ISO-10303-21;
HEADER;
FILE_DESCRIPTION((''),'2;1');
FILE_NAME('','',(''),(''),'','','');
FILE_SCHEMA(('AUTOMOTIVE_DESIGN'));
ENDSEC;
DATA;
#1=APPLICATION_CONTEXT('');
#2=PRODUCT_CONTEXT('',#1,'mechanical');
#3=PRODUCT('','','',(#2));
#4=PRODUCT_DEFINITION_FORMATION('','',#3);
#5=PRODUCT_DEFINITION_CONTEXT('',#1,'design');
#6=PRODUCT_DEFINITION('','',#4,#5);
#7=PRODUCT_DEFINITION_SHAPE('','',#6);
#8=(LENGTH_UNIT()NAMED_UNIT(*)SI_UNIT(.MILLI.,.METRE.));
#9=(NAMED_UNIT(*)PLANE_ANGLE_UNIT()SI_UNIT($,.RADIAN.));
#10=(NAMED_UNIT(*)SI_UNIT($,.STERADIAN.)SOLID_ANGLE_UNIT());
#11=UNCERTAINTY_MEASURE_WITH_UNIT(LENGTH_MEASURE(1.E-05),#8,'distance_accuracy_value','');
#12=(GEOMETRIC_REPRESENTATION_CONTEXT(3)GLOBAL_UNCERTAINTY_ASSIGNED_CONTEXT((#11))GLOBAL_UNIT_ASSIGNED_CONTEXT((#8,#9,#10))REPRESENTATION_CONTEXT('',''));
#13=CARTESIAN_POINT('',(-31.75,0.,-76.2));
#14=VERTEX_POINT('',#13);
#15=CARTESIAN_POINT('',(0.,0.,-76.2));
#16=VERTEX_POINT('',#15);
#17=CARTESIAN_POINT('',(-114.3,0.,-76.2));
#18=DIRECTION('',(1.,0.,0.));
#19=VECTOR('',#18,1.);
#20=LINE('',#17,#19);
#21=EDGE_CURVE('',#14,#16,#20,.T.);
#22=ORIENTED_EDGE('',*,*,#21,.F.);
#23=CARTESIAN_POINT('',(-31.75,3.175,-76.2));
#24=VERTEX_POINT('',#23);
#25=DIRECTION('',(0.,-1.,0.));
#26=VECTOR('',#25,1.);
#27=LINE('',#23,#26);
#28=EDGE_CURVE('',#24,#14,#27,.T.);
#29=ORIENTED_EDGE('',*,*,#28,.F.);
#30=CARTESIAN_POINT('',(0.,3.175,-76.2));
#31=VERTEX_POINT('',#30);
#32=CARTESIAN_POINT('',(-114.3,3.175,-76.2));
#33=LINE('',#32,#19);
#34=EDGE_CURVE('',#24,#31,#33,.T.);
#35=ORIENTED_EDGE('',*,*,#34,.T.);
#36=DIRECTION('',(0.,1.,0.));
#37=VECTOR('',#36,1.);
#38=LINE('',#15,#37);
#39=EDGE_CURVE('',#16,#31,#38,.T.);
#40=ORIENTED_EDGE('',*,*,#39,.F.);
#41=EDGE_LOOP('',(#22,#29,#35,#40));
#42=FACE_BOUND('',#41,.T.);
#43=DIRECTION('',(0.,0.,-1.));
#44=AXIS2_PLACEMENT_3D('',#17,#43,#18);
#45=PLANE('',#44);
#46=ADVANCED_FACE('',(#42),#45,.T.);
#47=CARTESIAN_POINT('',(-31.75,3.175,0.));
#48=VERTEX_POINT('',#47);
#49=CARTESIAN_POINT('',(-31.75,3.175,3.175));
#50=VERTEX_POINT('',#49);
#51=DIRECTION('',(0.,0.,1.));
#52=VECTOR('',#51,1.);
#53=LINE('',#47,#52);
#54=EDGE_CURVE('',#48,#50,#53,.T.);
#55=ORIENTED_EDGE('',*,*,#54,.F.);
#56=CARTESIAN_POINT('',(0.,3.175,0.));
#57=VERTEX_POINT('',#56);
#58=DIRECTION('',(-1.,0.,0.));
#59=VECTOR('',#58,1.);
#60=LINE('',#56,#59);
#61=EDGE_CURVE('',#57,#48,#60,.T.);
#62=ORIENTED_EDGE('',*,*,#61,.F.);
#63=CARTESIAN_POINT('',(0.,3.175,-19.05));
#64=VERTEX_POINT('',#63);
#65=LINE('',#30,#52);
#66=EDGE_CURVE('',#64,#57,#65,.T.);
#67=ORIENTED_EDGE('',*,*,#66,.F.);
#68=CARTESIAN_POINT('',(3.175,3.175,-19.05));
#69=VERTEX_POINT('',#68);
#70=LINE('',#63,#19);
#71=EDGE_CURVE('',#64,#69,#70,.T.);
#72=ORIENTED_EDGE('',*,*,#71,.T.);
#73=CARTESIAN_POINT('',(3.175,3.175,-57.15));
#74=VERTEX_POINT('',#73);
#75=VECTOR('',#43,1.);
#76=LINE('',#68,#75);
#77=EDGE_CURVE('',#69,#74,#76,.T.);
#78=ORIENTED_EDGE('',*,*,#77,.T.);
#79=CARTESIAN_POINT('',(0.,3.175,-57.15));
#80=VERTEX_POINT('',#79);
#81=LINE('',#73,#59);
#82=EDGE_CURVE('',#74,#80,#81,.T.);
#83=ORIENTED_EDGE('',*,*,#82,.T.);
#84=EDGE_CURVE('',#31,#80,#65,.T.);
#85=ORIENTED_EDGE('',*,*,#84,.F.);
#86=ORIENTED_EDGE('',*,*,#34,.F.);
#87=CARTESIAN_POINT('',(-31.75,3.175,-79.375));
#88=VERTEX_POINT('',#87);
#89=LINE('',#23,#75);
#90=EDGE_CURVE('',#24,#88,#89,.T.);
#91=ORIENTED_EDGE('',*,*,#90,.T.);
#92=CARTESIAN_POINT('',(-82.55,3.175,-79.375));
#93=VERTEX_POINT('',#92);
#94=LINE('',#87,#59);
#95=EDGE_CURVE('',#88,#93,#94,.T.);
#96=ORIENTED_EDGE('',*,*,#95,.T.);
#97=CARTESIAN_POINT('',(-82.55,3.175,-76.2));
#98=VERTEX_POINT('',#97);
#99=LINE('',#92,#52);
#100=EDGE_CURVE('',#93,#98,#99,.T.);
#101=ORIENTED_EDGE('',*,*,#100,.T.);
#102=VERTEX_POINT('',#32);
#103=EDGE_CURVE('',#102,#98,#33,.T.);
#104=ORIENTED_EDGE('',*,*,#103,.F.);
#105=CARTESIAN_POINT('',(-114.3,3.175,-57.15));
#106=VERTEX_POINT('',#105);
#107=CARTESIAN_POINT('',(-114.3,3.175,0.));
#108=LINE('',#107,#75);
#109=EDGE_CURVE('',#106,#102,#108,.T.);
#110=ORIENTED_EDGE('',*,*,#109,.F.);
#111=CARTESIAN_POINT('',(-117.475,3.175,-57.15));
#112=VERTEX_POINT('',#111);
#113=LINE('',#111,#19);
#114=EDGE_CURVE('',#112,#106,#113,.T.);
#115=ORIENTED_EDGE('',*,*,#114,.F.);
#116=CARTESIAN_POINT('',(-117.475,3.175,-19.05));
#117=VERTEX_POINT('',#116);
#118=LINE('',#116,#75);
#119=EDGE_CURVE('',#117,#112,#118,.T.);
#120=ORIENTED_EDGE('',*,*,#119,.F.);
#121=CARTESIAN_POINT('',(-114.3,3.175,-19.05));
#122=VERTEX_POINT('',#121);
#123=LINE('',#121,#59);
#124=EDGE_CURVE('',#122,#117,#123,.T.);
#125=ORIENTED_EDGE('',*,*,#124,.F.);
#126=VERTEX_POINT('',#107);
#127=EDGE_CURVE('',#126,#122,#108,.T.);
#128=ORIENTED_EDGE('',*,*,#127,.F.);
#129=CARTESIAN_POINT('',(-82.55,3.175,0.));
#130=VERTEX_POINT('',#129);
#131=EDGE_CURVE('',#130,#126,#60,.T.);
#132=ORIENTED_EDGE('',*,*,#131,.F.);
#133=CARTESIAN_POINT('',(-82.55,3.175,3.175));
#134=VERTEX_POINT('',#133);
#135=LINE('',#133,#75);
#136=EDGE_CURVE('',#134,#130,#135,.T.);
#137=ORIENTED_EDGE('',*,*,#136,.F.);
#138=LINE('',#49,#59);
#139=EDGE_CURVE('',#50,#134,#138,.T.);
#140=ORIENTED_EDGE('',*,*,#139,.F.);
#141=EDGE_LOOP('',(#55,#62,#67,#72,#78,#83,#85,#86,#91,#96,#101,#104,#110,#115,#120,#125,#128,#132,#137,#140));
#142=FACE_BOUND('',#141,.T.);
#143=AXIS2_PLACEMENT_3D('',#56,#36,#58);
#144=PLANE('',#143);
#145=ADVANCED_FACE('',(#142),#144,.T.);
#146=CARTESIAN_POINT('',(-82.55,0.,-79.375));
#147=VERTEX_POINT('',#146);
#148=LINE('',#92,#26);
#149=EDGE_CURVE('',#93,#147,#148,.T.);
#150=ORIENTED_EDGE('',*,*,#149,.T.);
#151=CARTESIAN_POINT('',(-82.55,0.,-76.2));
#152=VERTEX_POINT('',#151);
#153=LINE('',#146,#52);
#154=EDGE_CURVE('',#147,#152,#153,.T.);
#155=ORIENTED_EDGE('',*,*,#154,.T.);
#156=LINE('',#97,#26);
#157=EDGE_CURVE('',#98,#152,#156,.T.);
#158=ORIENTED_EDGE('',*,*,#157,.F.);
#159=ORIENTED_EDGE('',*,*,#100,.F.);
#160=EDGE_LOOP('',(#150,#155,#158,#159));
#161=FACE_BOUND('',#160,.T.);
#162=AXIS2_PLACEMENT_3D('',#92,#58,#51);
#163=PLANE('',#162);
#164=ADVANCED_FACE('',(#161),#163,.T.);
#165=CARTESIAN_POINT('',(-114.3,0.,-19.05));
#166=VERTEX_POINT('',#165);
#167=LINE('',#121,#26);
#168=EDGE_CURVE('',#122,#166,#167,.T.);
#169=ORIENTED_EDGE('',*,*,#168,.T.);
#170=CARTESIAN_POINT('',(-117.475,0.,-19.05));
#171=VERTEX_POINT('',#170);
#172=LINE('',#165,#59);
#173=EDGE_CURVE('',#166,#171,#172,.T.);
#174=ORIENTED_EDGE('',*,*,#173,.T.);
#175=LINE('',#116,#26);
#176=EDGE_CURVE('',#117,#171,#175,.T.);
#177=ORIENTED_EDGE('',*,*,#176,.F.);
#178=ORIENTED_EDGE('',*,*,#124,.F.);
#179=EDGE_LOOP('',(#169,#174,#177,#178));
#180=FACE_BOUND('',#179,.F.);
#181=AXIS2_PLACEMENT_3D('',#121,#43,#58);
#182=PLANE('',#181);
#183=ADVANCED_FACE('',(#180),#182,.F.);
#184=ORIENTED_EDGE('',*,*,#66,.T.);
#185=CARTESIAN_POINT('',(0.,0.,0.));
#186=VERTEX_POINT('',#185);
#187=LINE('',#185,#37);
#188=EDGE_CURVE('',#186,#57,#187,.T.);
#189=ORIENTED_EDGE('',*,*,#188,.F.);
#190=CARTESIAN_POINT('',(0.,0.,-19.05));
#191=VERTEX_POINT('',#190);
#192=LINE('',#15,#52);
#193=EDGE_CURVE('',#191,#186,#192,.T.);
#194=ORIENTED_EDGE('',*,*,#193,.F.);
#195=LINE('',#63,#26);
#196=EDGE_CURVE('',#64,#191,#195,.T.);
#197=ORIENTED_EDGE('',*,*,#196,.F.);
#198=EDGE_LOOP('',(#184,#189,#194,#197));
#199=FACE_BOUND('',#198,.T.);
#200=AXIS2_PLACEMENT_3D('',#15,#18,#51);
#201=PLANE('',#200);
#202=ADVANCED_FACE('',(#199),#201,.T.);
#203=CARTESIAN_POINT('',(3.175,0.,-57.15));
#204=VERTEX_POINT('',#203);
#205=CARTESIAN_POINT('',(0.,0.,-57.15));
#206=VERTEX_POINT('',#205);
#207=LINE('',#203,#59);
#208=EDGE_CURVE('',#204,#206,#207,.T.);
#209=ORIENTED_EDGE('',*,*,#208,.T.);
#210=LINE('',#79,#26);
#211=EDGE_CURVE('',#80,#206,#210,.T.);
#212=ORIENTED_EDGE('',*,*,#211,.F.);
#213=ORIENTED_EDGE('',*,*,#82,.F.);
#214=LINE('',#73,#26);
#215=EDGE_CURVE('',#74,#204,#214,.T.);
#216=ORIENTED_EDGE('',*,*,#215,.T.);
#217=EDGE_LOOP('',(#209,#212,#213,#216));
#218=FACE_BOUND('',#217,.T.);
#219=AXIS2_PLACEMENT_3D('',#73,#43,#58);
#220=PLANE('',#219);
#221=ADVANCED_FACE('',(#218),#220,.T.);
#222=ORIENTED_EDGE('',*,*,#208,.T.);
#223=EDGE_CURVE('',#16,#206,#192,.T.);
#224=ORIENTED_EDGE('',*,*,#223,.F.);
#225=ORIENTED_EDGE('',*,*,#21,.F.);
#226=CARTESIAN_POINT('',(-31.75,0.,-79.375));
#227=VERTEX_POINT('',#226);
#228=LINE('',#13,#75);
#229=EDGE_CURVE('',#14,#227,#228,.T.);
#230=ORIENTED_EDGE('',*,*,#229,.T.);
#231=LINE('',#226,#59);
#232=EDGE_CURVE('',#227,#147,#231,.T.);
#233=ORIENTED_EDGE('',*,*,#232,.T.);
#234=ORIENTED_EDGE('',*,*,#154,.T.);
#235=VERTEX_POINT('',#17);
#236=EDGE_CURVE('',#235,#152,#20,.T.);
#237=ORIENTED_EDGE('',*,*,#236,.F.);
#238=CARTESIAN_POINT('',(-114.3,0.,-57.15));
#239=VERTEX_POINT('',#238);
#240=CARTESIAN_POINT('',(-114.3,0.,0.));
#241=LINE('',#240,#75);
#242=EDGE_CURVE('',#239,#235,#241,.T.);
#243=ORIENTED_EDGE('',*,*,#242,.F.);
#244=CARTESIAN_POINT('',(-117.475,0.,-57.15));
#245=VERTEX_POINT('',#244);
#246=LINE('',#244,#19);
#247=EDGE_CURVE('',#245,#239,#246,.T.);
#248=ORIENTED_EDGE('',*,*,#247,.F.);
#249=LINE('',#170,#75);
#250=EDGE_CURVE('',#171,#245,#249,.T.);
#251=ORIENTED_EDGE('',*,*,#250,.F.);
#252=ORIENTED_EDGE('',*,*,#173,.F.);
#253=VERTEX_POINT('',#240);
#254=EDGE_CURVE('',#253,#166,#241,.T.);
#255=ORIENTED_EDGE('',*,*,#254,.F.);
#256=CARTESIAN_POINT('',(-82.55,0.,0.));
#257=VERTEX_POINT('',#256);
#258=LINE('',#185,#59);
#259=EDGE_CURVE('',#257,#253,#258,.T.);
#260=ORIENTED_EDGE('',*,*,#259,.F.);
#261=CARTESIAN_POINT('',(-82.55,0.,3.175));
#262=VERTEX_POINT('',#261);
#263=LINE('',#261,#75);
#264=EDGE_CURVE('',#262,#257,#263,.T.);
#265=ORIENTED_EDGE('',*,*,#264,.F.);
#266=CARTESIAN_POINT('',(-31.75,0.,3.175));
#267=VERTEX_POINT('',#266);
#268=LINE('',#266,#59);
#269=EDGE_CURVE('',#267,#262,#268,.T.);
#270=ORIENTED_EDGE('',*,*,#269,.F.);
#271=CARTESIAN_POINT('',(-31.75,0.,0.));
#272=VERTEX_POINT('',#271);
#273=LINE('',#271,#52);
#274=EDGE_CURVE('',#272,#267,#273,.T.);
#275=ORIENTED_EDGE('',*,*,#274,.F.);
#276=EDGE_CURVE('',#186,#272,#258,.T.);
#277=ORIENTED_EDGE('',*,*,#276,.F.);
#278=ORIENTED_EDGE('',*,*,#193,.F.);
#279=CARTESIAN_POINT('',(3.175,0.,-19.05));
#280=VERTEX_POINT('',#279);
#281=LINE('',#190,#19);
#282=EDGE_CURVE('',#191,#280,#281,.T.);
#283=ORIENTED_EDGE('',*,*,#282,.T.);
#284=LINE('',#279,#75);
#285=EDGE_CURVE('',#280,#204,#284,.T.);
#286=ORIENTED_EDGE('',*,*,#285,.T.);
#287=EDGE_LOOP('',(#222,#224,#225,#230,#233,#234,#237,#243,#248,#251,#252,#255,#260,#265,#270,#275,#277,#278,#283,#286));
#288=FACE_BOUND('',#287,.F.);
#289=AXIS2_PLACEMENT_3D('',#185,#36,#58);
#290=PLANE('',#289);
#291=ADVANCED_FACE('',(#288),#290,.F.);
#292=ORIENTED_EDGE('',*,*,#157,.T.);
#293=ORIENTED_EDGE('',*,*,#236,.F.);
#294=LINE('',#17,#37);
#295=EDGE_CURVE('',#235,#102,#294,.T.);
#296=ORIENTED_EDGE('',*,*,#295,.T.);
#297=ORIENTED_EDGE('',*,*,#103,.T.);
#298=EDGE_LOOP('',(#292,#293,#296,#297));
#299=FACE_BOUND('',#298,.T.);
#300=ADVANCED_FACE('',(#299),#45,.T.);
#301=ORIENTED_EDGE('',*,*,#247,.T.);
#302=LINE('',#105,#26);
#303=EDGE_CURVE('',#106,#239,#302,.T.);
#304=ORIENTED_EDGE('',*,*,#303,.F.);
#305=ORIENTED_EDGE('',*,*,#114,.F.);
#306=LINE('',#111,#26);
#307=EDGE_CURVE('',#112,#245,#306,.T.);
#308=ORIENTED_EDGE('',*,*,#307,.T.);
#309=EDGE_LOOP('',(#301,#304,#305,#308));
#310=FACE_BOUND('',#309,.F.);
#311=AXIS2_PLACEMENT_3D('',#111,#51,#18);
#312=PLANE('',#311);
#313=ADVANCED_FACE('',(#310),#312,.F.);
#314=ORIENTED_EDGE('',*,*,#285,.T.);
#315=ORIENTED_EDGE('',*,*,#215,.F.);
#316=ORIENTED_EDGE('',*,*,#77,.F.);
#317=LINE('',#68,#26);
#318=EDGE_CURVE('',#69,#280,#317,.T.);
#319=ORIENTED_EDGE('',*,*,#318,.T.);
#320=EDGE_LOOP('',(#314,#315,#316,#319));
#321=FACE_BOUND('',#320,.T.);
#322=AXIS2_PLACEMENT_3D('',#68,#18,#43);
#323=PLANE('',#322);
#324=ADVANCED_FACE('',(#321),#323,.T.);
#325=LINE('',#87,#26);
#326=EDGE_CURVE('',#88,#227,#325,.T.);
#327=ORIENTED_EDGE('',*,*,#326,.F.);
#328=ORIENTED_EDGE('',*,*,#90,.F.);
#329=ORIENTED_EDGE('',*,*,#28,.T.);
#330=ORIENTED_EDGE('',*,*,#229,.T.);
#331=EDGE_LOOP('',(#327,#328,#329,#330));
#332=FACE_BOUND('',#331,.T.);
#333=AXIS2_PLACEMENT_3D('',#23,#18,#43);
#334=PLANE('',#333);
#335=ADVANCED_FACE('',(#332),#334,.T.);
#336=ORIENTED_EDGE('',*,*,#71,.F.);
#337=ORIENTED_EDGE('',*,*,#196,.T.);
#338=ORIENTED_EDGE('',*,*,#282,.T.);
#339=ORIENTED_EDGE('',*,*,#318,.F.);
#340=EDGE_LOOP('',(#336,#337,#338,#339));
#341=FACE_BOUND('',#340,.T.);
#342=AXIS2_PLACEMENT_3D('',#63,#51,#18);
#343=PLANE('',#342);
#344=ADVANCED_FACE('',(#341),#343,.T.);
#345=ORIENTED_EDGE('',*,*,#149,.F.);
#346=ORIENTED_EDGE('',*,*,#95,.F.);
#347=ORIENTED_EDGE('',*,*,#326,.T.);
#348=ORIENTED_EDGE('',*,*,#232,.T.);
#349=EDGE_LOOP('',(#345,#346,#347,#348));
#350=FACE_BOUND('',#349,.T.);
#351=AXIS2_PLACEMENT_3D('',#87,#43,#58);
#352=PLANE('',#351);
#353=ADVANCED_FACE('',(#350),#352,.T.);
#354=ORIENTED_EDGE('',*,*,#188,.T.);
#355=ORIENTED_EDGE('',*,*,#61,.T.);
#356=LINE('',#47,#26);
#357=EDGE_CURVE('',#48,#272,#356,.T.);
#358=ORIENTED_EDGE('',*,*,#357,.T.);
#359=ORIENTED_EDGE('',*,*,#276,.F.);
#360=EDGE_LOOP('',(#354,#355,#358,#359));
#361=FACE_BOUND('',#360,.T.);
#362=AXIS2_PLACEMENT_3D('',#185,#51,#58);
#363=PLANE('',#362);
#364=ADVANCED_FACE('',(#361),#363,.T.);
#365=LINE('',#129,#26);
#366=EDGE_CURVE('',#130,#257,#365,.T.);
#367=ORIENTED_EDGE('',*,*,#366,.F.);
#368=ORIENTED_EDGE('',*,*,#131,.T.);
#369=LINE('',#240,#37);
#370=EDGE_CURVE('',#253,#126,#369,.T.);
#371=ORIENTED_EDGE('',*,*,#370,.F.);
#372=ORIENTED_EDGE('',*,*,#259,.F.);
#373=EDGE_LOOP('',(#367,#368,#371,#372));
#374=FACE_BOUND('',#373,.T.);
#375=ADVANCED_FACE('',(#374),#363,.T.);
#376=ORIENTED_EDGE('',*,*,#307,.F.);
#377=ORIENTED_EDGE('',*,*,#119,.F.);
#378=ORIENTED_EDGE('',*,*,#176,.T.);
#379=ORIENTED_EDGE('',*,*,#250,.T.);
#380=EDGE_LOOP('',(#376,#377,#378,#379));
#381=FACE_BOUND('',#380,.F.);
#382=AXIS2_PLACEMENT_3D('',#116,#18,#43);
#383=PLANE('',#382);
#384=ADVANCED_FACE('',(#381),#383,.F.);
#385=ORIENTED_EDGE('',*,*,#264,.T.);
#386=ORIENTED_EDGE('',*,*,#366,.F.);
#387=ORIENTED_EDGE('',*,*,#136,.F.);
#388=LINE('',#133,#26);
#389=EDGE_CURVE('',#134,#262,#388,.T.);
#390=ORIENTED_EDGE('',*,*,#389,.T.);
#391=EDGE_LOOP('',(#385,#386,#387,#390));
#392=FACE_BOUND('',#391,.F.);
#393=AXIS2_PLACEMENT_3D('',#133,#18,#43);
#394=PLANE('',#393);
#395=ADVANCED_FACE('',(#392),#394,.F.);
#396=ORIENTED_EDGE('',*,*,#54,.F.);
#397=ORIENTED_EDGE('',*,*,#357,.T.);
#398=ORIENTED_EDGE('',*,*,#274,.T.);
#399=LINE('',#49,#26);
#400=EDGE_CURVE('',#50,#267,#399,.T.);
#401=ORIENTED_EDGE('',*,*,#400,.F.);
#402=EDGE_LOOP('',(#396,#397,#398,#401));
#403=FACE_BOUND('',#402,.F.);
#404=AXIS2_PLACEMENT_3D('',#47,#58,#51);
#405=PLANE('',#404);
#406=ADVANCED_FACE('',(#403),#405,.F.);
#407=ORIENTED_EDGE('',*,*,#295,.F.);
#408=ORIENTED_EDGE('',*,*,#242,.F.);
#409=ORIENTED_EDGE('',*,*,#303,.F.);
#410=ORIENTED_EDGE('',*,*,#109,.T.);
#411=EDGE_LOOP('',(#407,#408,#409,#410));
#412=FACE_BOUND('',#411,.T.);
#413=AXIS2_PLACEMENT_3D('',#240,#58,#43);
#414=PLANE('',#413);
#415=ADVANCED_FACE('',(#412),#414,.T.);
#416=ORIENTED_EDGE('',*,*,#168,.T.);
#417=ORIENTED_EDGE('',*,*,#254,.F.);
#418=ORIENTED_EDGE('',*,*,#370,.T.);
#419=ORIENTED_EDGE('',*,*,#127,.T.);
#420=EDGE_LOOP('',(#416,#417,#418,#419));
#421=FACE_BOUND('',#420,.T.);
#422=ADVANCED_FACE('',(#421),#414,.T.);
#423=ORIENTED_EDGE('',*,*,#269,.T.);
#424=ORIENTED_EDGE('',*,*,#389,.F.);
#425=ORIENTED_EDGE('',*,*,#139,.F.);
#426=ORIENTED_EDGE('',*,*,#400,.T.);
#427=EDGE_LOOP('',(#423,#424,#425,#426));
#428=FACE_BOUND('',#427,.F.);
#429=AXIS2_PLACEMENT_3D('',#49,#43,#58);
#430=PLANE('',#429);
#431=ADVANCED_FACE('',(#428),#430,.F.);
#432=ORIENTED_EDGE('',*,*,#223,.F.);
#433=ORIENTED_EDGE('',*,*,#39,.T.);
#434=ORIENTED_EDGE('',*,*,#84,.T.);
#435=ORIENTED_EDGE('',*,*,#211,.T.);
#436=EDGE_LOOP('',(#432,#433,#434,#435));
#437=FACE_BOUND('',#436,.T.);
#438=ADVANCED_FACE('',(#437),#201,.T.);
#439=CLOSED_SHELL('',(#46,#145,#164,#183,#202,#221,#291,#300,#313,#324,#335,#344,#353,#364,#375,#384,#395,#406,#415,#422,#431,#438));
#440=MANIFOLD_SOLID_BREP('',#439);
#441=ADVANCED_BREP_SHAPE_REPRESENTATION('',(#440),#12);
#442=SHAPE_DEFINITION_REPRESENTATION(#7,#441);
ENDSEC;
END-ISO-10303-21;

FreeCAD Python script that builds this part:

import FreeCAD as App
import Part
import Sketcher

V = App.Vector
Q = App.Units.Quantity


def add_polygon(sketch, points):
    """Adds a closed chain of lines whose ends are joined by coincident constraints."""
    first, n = sketch.GeometryCount, len(points)
    for a, b in zip(points, points[1:] + points[:1]):
        sketch.addGeometry(Part.LineSegment(App.Vector(*a, 0), App.Vector(*b, 0)), False)
    for i in range(n):
        sketch.addConstraint(Sketcher.Constraint("Coincident", first + i, 2, first + (i + 1) % n, 1))

doc = App.newDocument("Part")
body = doc.addObject("PartDesign::Body", "Body")

sketch1 = body.newObject("Sketcher::SketchObject", "Sketch")
sketch1.AttachmentSupport = (doc.getObject("XZ_Plane"), [""])
sketch1.MapMode = "FlatFace"
add_polygon(sketch1, [(-114, 0), (0, 0), (0, -76), (-114, -76)])
sketch1.addConstraint(Sketcher.Constraint("Horizontal", 0))
sketch1.addConstraint(Sketcher.Constraint("Vertical", 1))
sketch1.addConstraint(Sketcher.Constraint("Horizontal", 2))
sketch1.addConstraint(Sketcher.Constraint("Vertical", 3))
sketch1.addConstraint(Sketcher.Constraint("Coincident", 0, 2, -1, 1))
sketch1.addConstraint(Sketcher.Constraint("DistanceY", 1, 2, 1, 1, Q("3 in")))
sketch1.addConstraint(Sketcher.Constraint("DistanceX", 0, 1, 0, 2, Q("4.5 in")))
pad1 = body.newObject("PartDesign::Pad", "Pad")
pad1.Profile = sketch1
pad1.Length = Q("0.125 in")
pad1.Reversed = True

sketch2 = body.newObject("Sketcher::SketchObject", "Sketch001")
sketch2.AttachmentSupport = (doc.getObject("XZ_Plane"), [""])
sketch2.MapMode = "FlatFace"
sketch2.AttachmentOffset = App.Placement(V(0, 0, -0.125 * 25.4), App.Rotation())
add_polygon(sketch2, [(-31.8, 0), (-82.5, 0), (-82.5, 3.2), (-31.8, 3.2)])
add_polygon(sketch2, [(-117.5, -19.1), (-114.3, -19.1), (-114.3, -57.1), (-117.5, -57.1)])
add_polygon(sketch2, [(0, -57.1), (0, -19.1), (3.2, -19.1), (3.2, -57.1)])
add_polygon(sketch2, [(-82.5, -79.4), (-82.5, -76.2), (-31.8, -76.2), (-31.8, -79.4)])
sketch2.addConstraint(Sketcher.Constraint("Horizontal", 0))
sketch2.addConstraint(Sketcher.Constraint("Vertical", 1))
sketch2.addConstraint(Sketcher.Constraint("Horizontal", 2))
sketch2.addConstraint(Sketcher.Constraint("Vertical", 3))
sketch2.addConstraint(Sketcher.Constraint("Horizontal", 4))
sketch2.addConstraint(Sketcher.Constraint("Vertical", 5))
sketch2.addConstraint(Sketcher.Constraint("Horizontal", 6))
sketch2.addConstraint(Sketcher.Constraint("Vertical", 7))
sketch2.addConstraint(Sketcher.Constraint("Vertical", 8))
sketch2.addConstraint(Sketcher.Constraint("Horizontal", 9))
sketch2.addConstraint(Sketcher.Constraint("Vertical", 10))
sketch2.addConstraint(Sketcher.Constraint("Horizontal", 11))
sketch2.addConstraint(Sketcher.Constraint("Vertical", 12))
sketch2.addConstraint(Sketcher.Constraint("Horizontal", 13))
sketch2.addConstraint(Sketcher.Constraint("Vertical", 14))
sketch2.addConstraint(Sketcher.Constraint("Horizontal", 15))
sketch2.addConstraint(Sketcher.Constraint("PointOnObject", 0, 2, -1))
sketch2.addConstraint(Sketcher.Constraint("PointOnObject", 8, 2, -2))
sketch2.addConstraint(Sketcher.Constraint("Horizontal", 7, 2, 8, 2))
sketch2.addConstraint(Sketcher.Constraint("Horizontal", 6, 2, 10, 2))
sketch2.addConstraint(Sketcher.Constraint("Vertical", 1, 2, 12, 2))
sketch2.addConstraint(Sketcher.Constraint("Vertical", 3, 2, 13, 2))
sketch2.addConstraint(Sketcher.Constraint("Equal", 6, 9))
sketch2.addConstraint(Sketcher.Constraint("Equal", 11, 1))
sketch2.addConstraint(Sketcher.Constraint("Equal", 3, 12))
sketch2.addConstraint(Sketcher.Constraint("DistanceX", 0, 2, 0, 1, Q("2 in")))
sketch2.addConstraint(Sketcher.Constraint("DistanceY", 5, 2, 5, 1, Q("1.5 in")))
sketch2.addConstraint(Sketcher.Constraint("DistanceX", 4, 1, 4, 2, Q("0.125 in")))
sketch2.addConstraint(Sketcher.Constraint("DistanceX", 2, 2, -1, 1, Q("1.25 in")))
sketch2.addConstraint(Sketcher.Constraint("DistanceY", 4, 2, -1, 1, Q("0.75 in")))
sketch2.addConstraint(Sketcher.Constraint("DistanceX", 4, 2, 0, 2, Q("1.25 in")))
sketch2.addConstraint(Sketcher.Constraint("DistanceY", 12, 2, 5, 2, Q("0.75 in")))
pad2 = body.newObject("PartDesign::Pad", "Pad001")
pad2.Profile = sketch2
pad2.Length = Q("0.125 in")

doc.recompute()
